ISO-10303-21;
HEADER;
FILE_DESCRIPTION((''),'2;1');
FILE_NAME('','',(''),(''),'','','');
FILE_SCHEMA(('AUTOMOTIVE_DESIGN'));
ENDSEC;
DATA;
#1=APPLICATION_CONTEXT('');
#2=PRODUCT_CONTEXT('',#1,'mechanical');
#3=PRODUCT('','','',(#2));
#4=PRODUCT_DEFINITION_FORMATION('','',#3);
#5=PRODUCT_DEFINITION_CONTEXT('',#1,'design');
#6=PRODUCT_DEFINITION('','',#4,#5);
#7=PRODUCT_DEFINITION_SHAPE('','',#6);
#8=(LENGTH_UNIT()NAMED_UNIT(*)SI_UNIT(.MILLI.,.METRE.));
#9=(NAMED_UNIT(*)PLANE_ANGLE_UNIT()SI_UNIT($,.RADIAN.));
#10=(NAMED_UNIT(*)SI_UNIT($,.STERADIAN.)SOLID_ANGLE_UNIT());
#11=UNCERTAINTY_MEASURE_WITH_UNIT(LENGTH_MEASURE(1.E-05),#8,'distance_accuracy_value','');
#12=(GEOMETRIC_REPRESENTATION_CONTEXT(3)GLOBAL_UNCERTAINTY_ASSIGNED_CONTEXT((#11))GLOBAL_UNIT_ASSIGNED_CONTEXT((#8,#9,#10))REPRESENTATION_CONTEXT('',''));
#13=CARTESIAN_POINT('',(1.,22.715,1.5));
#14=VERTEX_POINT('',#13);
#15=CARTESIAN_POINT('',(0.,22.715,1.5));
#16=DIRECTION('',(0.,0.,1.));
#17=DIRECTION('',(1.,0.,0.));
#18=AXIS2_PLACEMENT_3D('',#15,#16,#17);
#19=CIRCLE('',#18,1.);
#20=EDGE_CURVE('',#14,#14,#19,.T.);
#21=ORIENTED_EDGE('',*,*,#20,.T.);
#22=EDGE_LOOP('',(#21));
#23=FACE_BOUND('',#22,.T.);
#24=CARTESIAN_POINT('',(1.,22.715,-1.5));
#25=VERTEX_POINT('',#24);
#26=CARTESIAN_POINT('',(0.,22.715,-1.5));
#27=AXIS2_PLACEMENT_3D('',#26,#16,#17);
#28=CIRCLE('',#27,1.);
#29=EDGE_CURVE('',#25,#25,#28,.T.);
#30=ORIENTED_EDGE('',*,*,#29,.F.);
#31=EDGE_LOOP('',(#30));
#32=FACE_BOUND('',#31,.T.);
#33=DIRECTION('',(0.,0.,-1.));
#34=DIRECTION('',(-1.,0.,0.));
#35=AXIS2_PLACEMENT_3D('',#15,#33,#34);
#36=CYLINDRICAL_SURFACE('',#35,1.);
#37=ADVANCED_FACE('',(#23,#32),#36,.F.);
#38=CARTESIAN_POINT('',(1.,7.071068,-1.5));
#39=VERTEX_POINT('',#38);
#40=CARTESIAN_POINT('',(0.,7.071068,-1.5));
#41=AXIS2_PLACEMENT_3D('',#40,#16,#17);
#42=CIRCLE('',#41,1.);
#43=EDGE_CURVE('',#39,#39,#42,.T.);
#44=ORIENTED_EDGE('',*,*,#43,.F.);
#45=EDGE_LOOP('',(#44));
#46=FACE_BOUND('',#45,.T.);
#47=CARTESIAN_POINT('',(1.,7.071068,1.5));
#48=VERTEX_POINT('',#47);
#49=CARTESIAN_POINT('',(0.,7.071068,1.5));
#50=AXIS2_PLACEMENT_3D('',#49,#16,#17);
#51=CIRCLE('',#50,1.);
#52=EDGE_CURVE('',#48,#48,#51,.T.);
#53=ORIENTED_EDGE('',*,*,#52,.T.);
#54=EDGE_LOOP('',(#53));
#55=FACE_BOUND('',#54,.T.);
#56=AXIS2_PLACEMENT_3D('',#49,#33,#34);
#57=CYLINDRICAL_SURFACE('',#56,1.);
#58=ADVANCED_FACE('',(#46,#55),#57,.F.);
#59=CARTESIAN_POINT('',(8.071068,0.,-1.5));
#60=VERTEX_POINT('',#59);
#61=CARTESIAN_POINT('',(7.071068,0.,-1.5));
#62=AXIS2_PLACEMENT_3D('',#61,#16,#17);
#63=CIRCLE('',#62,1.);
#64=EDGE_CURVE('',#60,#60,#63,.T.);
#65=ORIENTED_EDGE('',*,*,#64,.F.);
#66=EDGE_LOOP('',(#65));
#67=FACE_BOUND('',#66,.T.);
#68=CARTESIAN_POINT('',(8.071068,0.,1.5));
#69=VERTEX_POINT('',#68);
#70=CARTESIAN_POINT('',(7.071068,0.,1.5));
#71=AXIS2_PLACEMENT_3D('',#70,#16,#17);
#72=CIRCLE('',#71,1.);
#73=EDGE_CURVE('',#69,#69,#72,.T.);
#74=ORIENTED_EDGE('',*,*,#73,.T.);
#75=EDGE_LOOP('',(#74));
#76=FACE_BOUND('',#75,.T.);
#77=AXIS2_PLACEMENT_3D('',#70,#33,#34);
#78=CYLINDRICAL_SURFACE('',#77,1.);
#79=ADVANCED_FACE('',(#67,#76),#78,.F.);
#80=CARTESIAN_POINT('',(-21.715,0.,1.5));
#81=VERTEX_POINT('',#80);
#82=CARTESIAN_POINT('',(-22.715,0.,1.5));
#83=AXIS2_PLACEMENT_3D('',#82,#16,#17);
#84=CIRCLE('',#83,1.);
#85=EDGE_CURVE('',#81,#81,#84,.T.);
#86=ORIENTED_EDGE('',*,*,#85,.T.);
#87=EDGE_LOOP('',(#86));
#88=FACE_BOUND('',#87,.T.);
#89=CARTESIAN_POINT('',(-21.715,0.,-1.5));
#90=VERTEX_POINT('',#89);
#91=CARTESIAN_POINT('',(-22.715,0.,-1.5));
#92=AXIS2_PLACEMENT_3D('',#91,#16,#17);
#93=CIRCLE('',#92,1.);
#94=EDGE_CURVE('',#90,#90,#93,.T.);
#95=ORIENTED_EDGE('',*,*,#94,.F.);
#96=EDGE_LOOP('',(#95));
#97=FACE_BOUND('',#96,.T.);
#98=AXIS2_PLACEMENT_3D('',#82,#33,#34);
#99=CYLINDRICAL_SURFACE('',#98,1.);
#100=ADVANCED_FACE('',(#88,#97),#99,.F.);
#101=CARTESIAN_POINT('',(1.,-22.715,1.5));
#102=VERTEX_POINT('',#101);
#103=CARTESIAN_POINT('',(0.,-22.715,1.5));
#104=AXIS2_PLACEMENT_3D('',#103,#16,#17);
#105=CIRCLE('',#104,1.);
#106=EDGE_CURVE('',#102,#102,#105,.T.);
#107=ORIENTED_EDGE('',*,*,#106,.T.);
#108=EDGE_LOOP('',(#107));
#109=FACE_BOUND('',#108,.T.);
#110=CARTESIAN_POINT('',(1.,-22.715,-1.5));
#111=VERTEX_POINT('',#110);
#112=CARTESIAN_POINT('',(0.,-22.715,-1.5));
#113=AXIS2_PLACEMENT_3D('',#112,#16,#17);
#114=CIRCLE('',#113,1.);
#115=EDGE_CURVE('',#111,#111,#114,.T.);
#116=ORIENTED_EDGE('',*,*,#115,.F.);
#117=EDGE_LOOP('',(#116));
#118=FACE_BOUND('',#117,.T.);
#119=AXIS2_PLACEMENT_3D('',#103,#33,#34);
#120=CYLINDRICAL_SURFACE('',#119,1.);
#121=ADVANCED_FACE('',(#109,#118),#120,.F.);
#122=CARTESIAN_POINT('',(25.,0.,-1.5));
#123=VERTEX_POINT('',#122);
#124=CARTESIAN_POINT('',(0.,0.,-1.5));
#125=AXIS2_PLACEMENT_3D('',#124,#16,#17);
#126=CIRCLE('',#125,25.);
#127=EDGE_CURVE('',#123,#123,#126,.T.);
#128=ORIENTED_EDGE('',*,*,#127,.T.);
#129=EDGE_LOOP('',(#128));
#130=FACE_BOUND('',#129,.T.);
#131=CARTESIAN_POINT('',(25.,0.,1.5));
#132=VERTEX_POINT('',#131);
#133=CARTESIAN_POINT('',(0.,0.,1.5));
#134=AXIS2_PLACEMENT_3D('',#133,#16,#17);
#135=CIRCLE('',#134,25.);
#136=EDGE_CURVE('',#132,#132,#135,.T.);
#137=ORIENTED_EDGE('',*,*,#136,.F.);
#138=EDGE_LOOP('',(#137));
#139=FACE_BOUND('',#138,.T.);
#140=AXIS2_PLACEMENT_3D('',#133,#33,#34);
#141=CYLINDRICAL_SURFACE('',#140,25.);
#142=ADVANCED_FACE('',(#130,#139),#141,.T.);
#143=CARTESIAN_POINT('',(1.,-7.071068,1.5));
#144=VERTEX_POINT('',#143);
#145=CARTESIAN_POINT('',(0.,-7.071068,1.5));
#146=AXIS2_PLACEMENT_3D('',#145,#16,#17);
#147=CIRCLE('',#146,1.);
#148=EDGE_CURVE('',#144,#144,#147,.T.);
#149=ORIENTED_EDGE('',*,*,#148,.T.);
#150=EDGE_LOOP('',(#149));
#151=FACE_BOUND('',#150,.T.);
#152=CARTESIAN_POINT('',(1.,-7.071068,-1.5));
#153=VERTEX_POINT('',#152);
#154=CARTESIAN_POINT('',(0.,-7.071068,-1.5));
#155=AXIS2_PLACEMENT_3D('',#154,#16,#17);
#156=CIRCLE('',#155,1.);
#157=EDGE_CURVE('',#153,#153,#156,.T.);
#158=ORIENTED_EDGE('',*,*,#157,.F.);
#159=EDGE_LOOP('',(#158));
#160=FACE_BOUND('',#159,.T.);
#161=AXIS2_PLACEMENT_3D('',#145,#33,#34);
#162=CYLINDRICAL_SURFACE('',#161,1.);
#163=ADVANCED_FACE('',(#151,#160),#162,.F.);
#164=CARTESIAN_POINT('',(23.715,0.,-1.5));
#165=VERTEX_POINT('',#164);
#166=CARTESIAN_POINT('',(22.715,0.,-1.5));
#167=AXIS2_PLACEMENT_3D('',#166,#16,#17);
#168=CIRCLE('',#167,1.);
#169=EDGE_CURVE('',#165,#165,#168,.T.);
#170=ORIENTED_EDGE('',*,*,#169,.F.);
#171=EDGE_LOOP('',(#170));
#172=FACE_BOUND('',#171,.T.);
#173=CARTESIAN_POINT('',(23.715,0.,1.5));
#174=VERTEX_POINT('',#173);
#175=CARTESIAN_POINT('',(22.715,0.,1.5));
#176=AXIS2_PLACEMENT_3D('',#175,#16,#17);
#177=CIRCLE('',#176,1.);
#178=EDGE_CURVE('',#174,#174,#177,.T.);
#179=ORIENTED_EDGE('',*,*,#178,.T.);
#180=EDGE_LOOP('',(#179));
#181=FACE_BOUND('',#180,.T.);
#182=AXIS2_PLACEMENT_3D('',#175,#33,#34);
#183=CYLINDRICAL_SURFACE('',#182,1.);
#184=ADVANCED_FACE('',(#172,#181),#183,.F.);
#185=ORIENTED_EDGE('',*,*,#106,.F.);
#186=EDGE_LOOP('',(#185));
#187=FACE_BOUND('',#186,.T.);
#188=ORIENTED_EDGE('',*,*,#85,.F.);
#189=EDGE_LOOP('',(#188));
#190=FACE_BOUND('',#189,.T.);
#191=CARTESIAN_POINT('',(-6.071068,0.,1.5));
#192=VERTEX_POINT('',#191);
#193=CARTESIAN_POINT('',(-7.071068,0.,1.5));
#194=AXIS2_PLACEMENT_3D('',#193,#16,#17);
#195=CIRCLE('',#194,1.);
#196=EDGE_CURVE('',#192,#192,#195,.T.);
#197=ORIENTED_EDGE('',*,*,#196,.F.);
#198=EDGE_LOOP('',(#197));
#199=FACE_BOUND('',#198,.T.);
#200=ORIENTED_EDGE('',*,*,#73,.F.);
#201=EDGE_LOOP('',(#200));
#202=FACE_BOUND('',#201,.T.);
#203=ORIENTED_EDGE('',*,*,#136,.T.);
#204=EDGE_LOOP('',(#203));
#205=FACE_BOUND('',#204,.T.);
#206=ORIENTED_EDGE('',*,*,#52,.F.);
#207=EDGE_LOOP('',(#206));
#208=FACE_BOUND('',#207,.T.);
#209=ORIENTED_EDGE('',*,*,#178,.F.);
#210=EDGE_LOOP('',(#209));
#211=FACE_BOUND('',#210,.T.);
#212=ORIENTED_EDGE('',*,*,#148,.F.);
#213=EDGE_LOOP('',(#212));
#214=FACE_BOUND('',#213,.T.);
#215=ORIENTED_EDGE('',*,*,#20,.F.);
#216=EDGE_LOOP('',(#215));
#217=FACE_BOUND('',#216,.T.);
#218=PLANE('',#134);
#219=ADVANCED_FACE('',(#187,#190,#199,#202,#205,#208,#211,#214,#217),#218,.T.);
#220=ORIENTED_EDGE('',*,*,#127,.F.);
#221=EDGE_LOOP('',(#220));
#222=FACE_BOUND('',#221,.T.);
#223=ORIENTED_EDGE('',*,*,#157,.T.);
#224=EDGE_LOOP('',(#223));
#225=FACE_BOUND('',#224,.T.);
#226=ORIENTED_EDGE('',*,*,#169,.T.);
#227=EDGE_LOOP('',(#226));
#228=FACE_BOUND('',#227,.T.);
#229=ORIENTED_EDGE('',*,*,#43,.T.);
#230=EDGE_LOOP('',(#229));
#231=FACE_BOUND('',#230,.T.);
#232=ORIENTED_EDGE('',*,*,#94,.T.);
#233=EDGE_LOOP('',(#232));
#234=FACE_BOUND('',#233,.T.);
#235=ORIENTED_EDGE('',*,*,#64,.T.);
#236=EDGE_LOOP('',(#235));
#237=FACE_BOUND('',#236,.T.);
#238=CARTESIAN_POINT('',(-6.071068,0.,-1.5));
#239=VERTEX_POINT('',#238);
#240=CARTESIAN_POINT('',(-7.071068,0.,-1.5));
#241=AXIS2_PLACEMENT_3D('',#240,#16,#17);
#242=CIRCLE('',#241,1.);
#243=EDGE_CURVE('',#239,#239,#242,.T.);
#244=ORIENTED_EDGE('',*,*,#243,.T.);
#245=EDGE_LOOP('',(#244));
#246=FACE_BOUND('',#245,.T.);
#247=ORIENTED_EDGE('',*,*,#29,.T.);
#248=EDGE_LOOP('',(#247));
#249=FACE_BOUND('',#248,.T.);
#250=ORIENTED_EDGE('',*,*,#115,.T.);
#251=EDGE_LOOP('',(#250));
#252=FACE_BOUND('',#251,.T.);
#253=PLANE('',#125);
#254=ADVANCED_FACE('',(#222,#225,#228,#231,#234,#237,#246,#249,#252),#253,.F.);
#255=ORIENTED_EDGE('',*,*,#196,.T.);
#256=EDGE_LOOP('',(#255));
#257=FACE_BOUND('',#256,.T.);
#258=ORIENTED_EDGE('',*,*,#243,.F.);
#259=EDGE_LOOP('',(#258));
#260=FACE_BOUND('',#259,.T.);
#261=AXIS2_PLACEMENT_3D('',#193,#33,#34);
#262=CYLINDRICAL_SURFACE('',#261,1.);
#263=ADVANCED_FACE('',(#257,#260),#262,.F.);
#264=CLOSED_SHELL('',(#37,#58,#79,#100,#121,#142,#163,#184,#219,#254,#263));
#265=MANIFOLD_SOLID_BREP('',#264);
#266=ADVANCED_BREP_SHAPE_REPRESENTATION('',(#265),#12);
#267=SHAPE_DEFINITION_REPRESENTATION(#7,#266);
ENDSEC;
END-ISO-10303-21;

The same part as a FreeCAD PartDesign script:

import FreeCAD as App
import Part
import Sketcher

doc = App.newDocument("Part")
body = doc.addObject("PartDesign::Body", "Body")

sketch1 = body.newObject("Sketcher::SketchObject", "Sketch")
sketch1.AttachmentSupport = (doc.getObject("XY_Plane"), [""])
sketch1.MapMode = "FlatFace"
sketch1.addGeometry([
    Part.Circle(App.Vector(0, 0, 0), App.Vector(0, 0, 1), 25),
    Part.Circle(App.Vector(0, -22.715, 0), App.Vector(0, 0, 1), 1),
    Part.Circle(App.Vector(0, -7.071068, 0), App.Vector(0, 0, 1), 1),
    Part.Circle(App.Vector(-22.715, 0, 0), App.Vector(0, 0, 1), 1),
    Part.Circle(App.Vector(-7.071068, 0, 0), App.Vector(0, 0, 1), 1),
    Part.Circle(App.Vector(7.071068, 0, 0), App.Vector(0, 0, 1), 1),
    Part.Circle(App.Vector(0, 7.071068, 0), App.Vector(0, 0, 1), 1),
    Part.Circle(App.Vector(22.715, 0, 0), App.Vector(0, 0, 1), 1),
    Part.Circle(App.Vector(0, 22.715, 0), App.Vector(0, 0, 1), 1),
], False)
sketch1.addConstraint([
    Sketcher.Constraint("Coincident", 0, 3, -1, 1),
    Sketcher.Constraint("Equal", 1, 2),
    Sketcher.Constraint("Equal", 2, 3),
    Sketcher.Constraint("Equal", 3, 4),
    Sketcher.Constraint("Equal", 4, 5),
    Sketcher.Constraint("Equal", 5, 6),
    Sketcher.Constraint("Equal", 6, 7),
    Sketcher.Constraint("Equal", 7, 8),
    Sketcher.Constraint("Symmetric", 4, 3, 5, 3, -1, 1),
    Sketcher.Constraint("Symmetric", 2, 3, 6, 3, -1, 1),
    Sketcher.Constraint("Symmetric", 3, 3, 7, 3, -1, 1),
    Sketcher.Constraint("Symmetric", 1, 3, 8, 3, -1, 1),
    Sketcher.Constraint("PointOnObject", 1, 3, -2),
    Sketcher.Constraint("PointOnObject", 2, 3, -2),
    Sketcher.Constraint("PointOnObject", 3, 3, -1),
    Sketcher.Constraint("PointOnObject", 4, 3, -1),
    Sketcher.Constraint("Diameter", 0, 50.0),
    Sketcher.Constraint("Diameter", 1, 2.0),
    Sketcher.Constraint("DistanceY", 1, 3, -1, 1, 22.715),
    Sketcher.Constraint("DistanceX", 3, 3, -1, 1, 22.715),
    Sketcher.Constraint("DistanceY", 2, 3, -1, 1, 7.071068),
    Sketcher.Constraint("DistanceX", 4, 3, -1, 1, 7.071068),
])
pad1 = body.newObject("PartDesign::Pad", "Pad")
pad1.Profile = sketch1
pad1.Length = 3
pad1.Midplane = True

doc.recompute()
